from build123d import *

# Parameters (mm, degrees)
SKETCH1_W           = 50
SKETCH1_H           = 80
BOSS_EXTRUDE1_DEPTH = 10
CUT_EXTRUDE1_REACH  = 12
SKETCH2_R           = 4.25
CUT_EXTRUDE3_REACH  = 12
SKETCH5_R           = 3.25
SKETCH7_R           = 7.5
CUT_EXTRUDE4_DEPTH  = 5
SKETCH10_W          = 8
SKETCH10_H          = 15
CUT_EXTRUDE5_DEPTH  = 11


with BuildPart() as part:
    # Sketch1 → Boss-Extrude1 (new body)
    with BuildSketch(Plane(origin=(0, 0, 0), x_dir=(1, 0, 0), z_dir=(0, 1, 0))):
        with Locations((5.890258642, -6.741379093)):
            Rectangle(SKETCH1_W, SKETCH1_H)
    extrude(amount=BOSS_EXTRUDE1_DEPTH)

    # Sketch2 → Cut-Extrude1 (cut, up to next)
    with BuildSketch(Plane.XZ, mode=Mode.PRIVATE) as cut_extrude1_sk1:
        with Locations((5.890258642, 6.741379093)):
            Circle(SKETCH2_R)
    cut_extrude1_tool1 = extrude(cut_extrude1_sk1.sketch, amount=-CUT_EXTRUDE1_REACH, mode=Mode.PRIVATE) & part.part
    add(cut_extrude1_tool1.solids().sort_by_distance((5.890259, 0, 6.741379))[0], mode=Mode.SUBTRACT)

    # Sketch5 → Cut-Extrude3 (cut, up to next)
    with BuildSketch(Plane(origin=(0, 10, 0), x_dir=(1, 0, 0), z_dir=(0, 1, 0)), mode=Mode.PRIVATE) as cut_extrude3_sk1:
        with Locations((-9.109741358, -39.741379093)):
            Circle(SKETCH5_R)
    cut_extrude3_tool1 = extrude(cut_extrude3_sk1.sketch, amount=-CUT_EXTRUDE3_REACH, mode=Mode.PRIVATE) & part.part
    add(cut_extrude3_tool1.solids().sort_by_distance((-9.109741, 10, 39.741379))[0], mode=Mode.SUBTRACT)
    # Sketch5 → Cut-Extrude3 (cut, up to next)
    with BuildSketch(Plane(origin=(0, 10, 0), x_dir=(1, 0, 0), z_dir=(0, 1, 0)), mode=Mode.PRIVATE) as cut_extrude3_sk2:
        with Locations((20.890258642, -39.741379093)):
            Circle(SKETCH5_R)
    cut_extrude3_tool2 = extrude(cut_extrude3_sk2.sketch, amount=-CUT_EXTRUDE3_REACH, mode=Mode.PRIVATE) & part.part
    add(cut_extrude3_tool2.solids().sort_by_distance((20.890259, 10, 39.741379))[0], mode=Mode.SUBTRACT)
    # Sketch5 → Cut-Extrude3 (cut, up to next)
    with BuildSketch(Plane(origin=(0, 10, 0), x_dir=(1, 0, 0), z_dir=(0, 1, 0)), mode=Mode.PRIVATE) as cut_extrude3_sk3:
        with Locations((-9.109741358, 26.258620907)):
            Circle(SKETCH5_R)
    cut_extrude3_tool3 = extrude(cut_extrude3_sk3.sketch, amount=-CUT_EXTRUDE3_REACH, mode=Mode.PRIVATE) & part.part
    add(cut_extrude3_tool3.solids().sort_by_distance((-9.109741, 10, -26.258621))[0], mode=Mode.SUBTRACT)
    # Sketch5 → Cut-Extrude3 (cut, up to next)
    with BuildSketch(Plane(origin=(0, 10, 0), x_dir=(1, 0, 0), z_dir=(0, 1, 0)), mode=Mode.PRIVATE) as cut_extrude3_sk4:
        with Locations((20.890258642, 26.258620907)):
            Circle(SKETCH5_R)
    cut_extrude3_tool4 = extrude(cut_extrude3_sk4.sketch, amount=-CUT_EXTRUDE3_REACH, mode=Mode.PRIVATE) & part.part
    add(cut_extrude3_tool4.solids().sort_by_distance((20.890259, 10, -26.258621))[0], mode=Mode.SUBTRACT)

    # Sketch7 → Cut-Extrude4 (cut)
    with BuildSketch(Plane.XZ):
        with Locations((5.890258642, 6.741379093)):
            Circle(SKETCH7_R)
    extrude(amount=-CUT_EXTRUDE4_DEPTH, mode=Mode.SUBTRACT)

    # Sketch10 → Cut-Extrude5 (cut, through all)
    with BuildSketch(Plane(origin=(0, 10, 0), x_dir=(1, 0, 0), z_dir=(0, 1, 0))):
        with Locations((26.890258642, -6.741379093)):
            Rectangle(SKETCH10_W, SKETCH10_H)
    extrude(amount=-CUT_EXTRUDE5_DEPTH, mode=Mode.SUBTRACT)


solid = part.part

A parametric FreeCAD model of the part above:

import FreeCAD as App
import Part
import Sketcher
Q = App.Units.Quantity

doc = App.newDocument("Part")
body = doc.addObject("PartDesign::Body", "Body")

sketch1 = body.newObject("Sketcher::SketchObject", "Sketch")
sketch1.AttachmentSupport = (doc.getObject("XZ_Plane"), [""])
sketch1.MapMode = "FlatFace"
sketch1.addGeometry([
    Part.LineSegment(App.Vector(-19, -33, 0), App.Vector(-19, 47, 0)),
    Part.LineSegment(App.Vector(-19, 47, 0), App.Vector(31, 47, 0)),
    Part.LineSegment(App.Vector(31, 47, 0), App.Vector(31, -33, 0)),
    Part.LineSegment(App.Vector(31, -33, 0), App.Vector(-19, -33, 0)),
], False)
sketch1.addConstraint([
    Sketcher.Constraint("Coincident", 0, 2, 1, 1),
    Sketcher.Constraint("Coincident", 1, 2, 2, 1),
    Sketcher.Constraint("Coincident", 2, 2, 3, 1),
    Sketcher.Constraint("Coincident", 3, 2, 0, 1),
    Sketcher.Constraint("Vertical", 0),
    Sketcher.Constraint("Horizontal", 1),
    Sketcher.Constraint("Vertical", 2),
    Sketcher.Constraint("Horizontal", 3),
    Sketcher.Constraint("DistanceX", 1, 1, 1, 2, Q("50 mm")),
    Sketcher.Constraint("DistanceY", 0, 1, 0, 2, Q("80 mm")),
    Sketcher.Constraint("DistanceX", 0, 2, -1, 1, Q("19.109741 mm")),
    Sketcher.Constraint("DistanceY", -1, 1, 0, 2, Q("46.741379 mm")),
])
pad1 = body.newObject("PartDesign::Pad", "Pad")
pad1.Profile = sketch1
pad1.Length = 10
pad1.Reversed = True

sketch2 = body.newObject("Sketcher::SketchObject", "Sketch001")
sketch2.AttachmentSupport = (doc.getObject("XZ_Plane"), [""])
sketch2.MapMode = "FlatFace"
sketch2.addGeometry(Part.Circle(App.Vector(5.9, 6.7, 0), App.Vector(0, 0, 1), 4.2), False)
sketch2.addConstraint([
    Sketcher.Constraint("Diameter", 0, Q("8.5 mm")),
    Sketcher.Constraint("DistanceX", -1, 1, 0, 3, Q("5.890259 mm")),
    Sketcher.Constraint("DistanceY", -1, 1, 0, 3, Q("6.741379 mm")),
])
pocket1 = body.newObject("PartDesign::Pocket", "Pocket")
pocket1.Profile = sketch2
pocket1.Type = "UpToFirst"

sketch3 = body.newObject("Sketcher::SketchObject", "Sketch002")
sketch3.AttachmentSupport = (doc.getObject("XZ_Plane"), [""])
sketch3.MapMode = "FlatFace"
sketch3.AttachmentOffset = App.Placement(App.Vector(0, 0, -10), App.Rotation())
sketch3.addGeometry(Part.Circle(App.Vector(-9.1, 39.7, 0), App.Vector(0, 0, 1), 3.2), False)
sketch3.addConstraint([
    Sketcher.Constraint("Diameter", 0, Q("6.5 mm")),
    Sketcher.Constraint("DistanceX", 0, 3, -1, 1, Q("9.109741 mm")),
    Sketcher.Constraint("DistanceY", -1, 1, 0, 3, Q("39.741379 mm")),
])
pocket2 = body.newObject("PartDesign::Pocket", "Pocket001")
pocket2.Profile = sketch3
pocket2.Type = "UpToFirst"
pocket2.Reversed = True

sketch4 = body.newObject("Sketcher::SketchObject", "Sketch003")
sketch4.AttachmentSupport = (doc.getObject("XZ_Plane"), [""])
sketch4.MapMode = "FlatFace"
sketch4.AttachmentOffset = App.Placement(App.Vector(0, 0, -10), App.Rotation())
sketch4.addGeometry(Part.Circle(App.Vector(20.9, 39.7, 0), App.Vector(0, 0, 1), 3.2), False)
sketch4.addConstraint([
    Sketcher.Constraint("Diameter", 0, Q("6.5 mm")),
    Sketcher.Constraint("DistanceX", -1, 1, 0, 3, Q("20.890259 mm")),
    Sketcher.Constraint("DistanceY", -1, 1, 0, 3, Q("39.741379 mm")),
])
pocket3 = body.newObject("PartDesign::Pocket", "Pocket002")
pocket3.Profile = sketch4
pocket3.Type = "UpToFirst"
pocket3.Reversed = True

sketch5 = body.newObject("Sketcher::SketchObject", "Sketch004")
sketch5.AttachmentSupport = (doc.getObject("XZ_Plane"), [""])
sketch5.MapMode = "FlatFace"
sketch5.AttachmentOffset = App.Placement(App.Vector(0, 0, -10), App.Rotation())
sketch5.addGeometry(Part.Circle(App.Vector(-9.1, -26.3, 0), App.Vector(0, 0, 1), 3.2), False)
sketch5.addConstraint([
    Sketcher.Constraint("Diameter", 0, Q("6.5 mm")),
    Sketcher.Constraint("DistanceX", 0, 3, -1, 1, Q("9.109741 mm")),
    Sketcher.Constraint("DistanceY", 0, 3, -1, 1, Q("26.258621 mm")),
])
pocket4 = body.newObject("PartDesign::Pocket", "Pocket003")
pocket4.Profile = sketch5
pocket4.Type = "UpToFirst"
pocket4.Reversed = True

sketch6 = body.newObject("Sketcher::SketchObject", "Sketch005")
sketch6.AttachmentSupport = (doc.getObject("XZ_Plane"), [""])
sketch6.MapMode = "FlatFace"
sketch6.AttachmentOffset = App.Placement(App.Vector(0, 0, -10), App.Rotation())
sketch6.addGeometry(Part.Circle(App.Vector(20.9, -26.3, 0), App.Vector(0, 0, 1), 3.2), False)
sketch6.addConstraint([
    Sketcher.Constraint("Diameter", 0, Q("6.5 mm")),
    Sketcher.Constraint("DistanceX", -1, 1, 0, 3, Q("20.890259 mm")),
    Sketcher.Constraint("DistanceY", 0, 3, -1, 1, Q("26.258621 mm")),
])
pocket5 = body.newObject("PartDesign::Pocket", "Pocket004")
pocket5.Profile = sketch6
pocket5.Type = "UpToFirst"
pocket5.Reversed = True

sketch7 = body.newObject("Sketcher::SketchObject", "Sketch006")
sketch7.AttachmentSupport = (doc.getObject("XZ_Plane"), [""])
sketch7.MapMode = "FlatFace"
sketch7.addGeometry(Part.Circle(App.Vector(6, 7, 0), App.Vector(0, 0, 1), 8), False)
sketch7.addConstraint([
    Sketcher.Constraint("Diameter", 0, Q("15 mm")),
    Sketcher.Constraint("DistanceX", -1, 1, 0, 3, Q("5.890259 mm")),
    Sketcher.Constraint("DistanceY", -1, 1, 0, 3, Q("6.741379 mm")),
])
pocket6 = body.newObject("PartDesign::Pocket", "Pocket005")
pocket6.Profile = sketch7
pocket6.Length = 5

sketch8 = body.newObject("Sketcher::SketchObject", "Sketch007")
sketch8.AttachmentSupport = (doc.getObject("XZ_Plane"), [""])
sketch8.MapMode = "FlatFace"
sketch8.AttachmentOffset = App.Placement(App.Vector(0, 0, -10), App.Rotation())
sketch8.addGeometry([
    Part.LineSegment(App.Vector(23, -1, 0), App.Vector(23, 14, 0)),
    Part.LineSegment(App.Vector(23, 14, 0), App.Vector(31, 14, 0)),
    Part.LineSegment(App.Vector(31, 14, 0), App.Vector(31, -1, 0)),
    Part.LineSegment(App.Vector(31, -1, 0), App.Vector(23, -1, 0)),
], False)
sketch8.addConstraint([
    Sketcher.Constraint("Coincident", 0, 2, 1, 1),
    Sketcher.Constraint("Coincident", 1, 2, 2, 1),
    Sketcher.Constraint("Coincident", 2, 2, 3, 1),
    Sketcher.Constraint("Coincident", 3, 2, 0, 1),
    Sketcher.Constraint("Vertical", 0),
    Sketcher.Constraint("Horizontal", 1),
    Sketcher.Constraint("Vertical", 2),
    Sketcher.Constraint("Horizontal", 3),
    Sketcher.Constraint("DistanceX", 1, 1, 1, 2, Q("8 mm")),
    Sketcher.Constraint("DistanceY", 0, 1, 0, 2, Q("15 mm")),
    Sketcher.Constraint("DistanceX", -1, 1, 0, 2, Q("22.890259 mm")),
    Sketcher.Constraint("DistanceY", -1, 1, 0, 2, Q("14.241379 mm")),
])
pocket7 = body.newObject("PartDesign::Pocket", "Pocket006")
pocket7.Profile = sketch8
pocket7.Type = "ThroughAll"
pocket7.Reversed = True

doc.recompute()
